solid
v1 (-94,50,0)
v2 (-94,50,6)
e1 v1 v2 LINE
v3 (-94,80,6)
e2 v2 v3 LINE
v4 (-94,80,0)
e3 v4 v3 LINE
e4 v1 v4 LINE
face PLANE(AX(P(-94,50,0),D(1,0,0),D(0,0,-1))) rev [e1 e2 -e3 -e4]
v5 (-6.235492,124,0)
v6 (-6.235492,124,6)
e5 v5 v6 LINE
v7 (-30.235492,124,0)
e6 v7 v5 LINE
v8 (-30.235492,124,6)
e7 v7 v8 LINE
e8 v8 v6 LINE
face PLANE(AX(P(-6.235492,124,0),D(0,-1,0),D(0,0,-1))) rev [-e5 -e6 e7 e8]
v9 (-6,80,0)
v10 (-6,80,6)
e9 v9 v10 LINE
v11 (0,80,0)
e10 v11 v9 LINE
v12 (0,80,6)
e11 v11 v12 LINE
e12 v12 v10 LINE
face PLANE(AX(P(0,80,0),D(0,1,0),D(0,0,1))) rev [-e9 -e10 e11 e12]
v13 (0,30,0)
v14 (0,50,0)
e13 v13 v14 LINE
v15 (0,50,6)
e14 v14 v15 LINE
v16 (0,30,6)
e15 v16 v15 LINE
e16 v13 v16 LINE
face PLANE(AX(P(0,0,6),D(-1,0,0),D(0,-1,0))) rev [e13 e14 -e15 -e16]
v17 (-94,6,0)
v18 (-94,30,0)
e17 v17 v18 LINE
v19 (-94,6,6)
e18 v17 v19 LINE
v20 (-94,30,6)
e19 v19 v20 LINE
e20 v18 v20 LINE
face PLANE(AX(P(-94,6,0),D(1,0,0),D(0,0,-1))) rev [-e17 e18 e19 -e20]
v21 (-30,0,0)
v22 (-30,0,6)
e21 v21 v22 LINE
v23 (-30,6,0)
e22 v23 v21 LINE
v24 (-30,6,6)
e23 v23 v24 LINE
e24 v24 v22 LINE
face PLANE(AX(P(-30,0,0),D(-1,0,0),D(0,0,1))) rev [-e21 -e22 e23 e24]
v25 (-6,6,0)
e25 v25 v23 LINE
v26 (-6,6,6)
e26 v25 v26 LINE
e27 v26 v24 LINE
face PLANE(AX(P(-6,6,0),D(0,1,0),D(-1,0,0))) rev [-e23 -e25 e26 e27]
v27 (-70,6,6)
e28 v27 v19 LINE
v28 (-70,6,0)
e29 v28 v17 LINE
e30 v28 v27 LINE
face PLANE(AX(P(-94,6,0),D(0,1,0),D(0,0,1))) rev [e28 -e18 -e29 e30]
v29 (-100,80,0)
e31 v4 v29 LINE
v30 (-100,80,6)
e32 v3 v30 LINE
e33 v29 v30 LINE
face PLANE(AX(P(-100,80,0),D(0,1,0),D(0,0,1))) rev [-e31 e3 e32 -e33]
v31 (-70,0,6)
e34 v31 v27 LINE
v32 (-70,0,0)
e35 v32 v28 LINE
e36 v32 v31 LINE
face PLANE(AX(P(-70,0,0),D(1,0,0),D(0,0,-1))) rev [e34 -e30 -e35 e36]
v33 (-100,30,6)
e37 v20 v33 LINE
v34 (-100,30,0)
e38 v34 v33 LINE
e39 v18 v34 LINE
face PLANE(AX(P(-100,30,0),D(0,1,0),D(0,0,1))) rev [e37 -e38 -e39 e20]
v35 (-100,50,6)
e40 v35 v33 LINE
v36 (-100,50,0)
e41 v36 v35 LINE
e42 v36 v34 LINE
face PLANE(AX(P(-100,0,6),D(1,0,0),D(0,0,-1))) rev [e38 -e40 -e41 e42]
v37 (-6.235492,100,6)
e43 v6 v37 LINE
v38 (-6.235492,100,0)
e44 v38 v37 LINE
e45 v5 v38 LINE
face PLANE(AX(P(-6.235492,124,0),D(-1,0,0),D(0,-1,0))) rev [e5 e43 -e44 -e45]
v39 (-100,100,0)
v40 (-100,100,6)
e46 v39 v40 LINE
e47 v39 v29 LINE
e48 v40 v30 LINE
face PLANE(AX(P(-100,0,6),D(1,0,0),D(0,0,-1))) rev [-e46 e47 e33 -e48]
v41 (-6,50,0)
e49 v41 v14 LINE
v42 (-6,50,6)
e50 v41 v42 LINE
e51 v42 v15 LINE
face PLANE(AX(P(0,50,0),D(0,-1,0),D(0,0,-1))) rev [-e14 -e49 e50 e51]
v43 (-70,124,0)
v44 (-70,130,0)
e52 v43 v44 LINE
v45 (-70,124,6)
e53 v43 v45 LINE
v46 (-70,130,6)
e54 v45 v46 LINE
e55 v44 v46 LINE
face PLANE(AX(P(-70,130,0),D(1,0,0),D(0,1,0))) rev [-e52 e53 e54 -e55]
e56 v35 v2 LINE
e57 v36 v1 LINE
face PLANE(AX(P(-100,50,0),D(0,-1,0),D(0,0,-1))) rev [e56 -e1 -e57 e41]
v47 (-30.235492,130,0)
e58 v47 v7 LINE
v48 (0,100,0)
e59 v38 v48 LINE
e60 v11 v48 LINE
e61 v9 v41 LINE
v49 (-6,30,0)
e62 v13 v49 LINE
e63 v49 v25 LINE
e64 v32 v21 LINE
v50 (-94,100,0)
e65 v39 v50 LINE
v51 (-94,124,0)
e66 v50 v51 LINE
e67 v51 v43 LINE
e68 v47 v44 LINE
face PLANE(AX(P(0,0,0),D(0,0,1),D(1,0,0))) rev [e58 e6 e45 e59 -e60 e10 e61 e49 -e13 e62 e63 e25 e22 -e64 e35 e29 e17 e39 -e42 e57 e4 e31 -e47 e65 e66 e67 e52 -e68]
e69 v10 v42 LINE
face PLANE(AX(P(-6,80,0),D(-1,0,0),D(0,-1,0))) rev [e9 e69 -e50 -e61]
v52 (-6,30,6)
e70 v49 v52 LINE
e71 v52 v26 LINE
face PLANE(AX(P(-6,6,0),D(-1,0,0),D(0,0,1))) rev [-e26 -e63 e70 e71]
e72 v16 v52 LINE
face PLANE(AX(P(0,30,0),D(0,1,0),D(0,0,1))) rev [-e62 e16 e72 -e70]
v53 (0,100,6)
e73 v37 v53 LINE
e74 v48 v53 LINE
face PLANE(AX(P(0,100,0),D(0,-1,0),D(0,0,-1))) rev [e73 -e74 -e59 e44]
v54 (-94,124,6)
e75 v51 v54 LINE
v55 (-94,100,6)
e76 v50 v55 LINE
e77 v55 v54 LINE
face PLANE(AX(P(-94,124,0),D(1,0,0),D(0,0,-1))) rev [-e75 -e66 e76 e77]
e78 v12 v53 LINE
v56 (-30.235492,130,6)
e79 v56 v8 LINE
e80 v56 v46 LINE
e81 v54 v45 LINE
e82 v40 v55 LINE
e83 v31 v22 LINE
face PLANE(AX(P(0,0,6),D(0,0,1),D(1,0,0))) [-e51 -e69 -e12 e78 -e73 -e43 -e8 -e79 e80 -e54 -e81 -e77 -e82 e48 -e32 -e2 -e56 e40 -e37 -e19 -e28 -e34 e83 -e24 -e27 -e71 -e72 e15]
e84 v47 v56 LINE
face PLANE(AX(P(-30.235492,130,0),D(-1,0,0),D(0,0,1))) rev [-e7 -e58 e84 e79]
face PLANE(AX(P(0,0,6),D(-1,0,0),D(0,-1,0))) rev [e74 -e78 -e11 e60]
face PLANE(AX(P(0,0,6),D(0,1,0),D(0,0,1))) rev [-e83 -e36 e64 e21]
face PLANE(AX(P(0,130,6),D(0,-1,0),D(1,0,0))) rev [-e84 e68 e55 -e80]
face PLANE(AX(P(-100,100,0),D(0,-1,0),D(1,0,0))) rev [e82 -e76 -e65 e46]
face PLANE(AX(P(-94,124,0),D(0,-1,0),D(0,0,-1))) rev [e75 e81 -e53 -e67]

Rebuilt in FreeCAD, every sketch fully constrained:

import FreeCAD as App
import Part
import Sketcher
Q = App.Units.Quantity

doc = App.newDocument("Part")
params = doc.addObject("Spreadsheet::Sheet", "Params")
for row, (alias, value) in enumerate([
    ("sketch1_width", "100 mm"),
    ("sketch1_height", "130 mm"),
    ("pad1_length", "6 mm"),
    ("sketch2_width", "30 mm"),
    ("sketch2_width2", "6 mm"),
    ("pocket1_length", "6 mm"),
], start=1):
    params.set(f"A{row}", alias)
    params.set(f"B{row}", "=" + value)
    params.setAlias(f"B{row}", alias)

body = doc.addObject("PartDesign::Body", "Body")

# Sketch on XY plane
sketch1 = doc.addObject("Sketcher::SketchObject", "Sketch")
body.addObject(sketch1)
sketch1.AttachmentSupport = (doc.XY_Plane, [""])
sketch1.MapMode = "FlatFace"
sketch1.addGeometry([
    Part.LineSegment(App.Vector(-100, 130, 0), App.Vector(-100, 0, 0)),
    Part.LineSegment(App.Vector(-100, 0, 0), App.Vector(0, 0, 0)),
    Part.LineSegment(App.Vector(0, 0, 0), App.Vector(0, 130, 0)),
    Part.LineSegment(App.Vector(0, 130, 0), App.Vector(-100, 130, 0)),
], False)
sketch1.addConstraint([
    Sketcher.Constraint("Coincident", 0, 2, 1, 1),
    Sketcher.Constraint("Coincident", 1, 2, 2, 1),
    Sketcher.Constraint("Coincident", 2, 2, 3, 1),
    Sketcher.Constraint("Coincident", 3, 2, 0, 1),
    Sketcher.Constraint("Vertical", 0),
    Sketcher.Constraint("Horizontal", 1),
    Sketcher.Constraint("Vertical", 2),
    Sketcher.Constraint("Horizontal", 3),
    Sketcher.Constraint("Coincident", 1, 2, -1, 1),
    Sketcher.Constraint("DistanceX", 1, 1, 1, 2, Q("100 mm")),
    Sketcher.Constraint("DistanceY", 0, 2, 0, 1, Q("130 mm")),
])
sketch1.setExpression("Constraints[9]", "Params.sketch1_width")
sketch1.setExpression("Constraints[10]", "Params.sketch1_height")
pad1 = doc.addObject("PartDesign::Pad", "Pad")
body.addObject(pad1)
pad1.Profile = sketch1
pad1.setExpression("Length", "Params.pad1_length")

# Sketch on XY plane
sketch2 = doc.addObject("Sketcher::SketchObject", "Sketch001")
body.addObject(sketch2)
sketch2.AttachmentSupport = (doc.XY_Plane, [""])
sketch2.MapMode = "FlatFace"
sketch2.AttachmentOffset = App.Placement(App.Vector(0, 0, 6), App.Rotation())
sketch2.addGeometry([
    Part.LineSegment(App.Vector(-70, 130, 0), App.Vector(-100, 130, 0)),  # 0
    Part.LineSegment(App.Vector(-100, 130, 0), App.Vector(-100, 100, 0)),  # 1
    Part.LineSegment(App.Vector(-100, 100, 0), App.Vector(-94, 100, 0)),  # 2
    Part.LineSegment(App.Vector(-94, 100, 0), App.Vector(-94, 124, 0)),  # 3
    Part.LineSegment(App.Vector(-94, 124, 0), App.Vector(-70, 124, 0)),  # 4
    Part.LineSegment(App.Vector(-70, 124, 0), App.Vector(-70, 130, 0)),  # 5
    Part.LineSegment(App.Vector(0, 130, 0), App.Vector(-30, 130, 0)),  # 6
    Part.LineSegment(App.Vector(-30, 130, 0), App.Vector(-30, 124, 0)),  # 7
    Part.LineSegment(App.Vector(-30, 124, 0), App.Vector(-6, 124, 0)),  # 8
    Part.LineSegment(App.Vector(-6, 124, 0), App.Vector(-6, 100, 0)),  # 9
    Part.LineSegment(App.Vector(-6, 100, 0), App.Vector(0, 100, 0)),  # 10
    Part.LineSegment(App.Vector(0, 100, 0), App.Vector(0, 130, 0)),  # 11
    Part.LineSegment(App.Vector(-100, 0, 0), App.Vector(-70, 0, 0)),  # 12
    Part.LineSegment(App.Vector(-70, 0, 0), App.Vector(-70, 6, 0)),  # 13
    Part.LineSegment(App.Vector(-70, 6, 0), App.Vector(-94, 6, 0)),  # 14
    Part.LineSegment(App.Vector(-94, 6, 0), App.Vector(-94, 30, 0)),  # 15
    Part.LineSegment(App.Vector(-94, 30, 0), App.Vector(-100, 30, 0)),  # 16
    Part.LineSegment(App.Vector(-100, 30, 0), App.Vector(-100, 0, 0)),  # 17
    Part.LineSegment(App.Vector(-30, 0, 0), App.Vector(0, 0, 0)),  # 18
    Part.LineSegment(App.Vector(0, 0, 0), App.Vector(0, 30, 0)),  # 19
    Part.LineSegment(App.Vector(0, 30, 0), App.Vector(-6, 30, 0)),  # 20
    Part.LineSegment(App.Vector(-6, 30, 0), App.Vector(-6, 6, 0)),  # 21
    Part.LineSegment(App.Vector(-6, 6, 0), App.Vector(-30, 6, 0)),  # 22
    Part.LineSegment(App.Vector(-30, 6, 0), App.Vector(-30, 0, 0)),  # 23
    Part.LineSegment(App.Vector(-100, 80, 0), App.Vector(-100, 50, 0)),  # 24
    Part.LineSegment(App.Vector(-100, 50, 0), App.Vector(-94, 50, 0)),  # 25
    Part.LineSegment(App.Vector(-94, 50, 0), App.Vector(-94, 80, 0)),  # 26
    Part.LineSegment(App.Vector(-94, 80, 0), App.Vector(-100, 80, 0)),  # 27
    Part.LineSegment(App.Vector(-6, 80, 0), App.Vector(-6, 50, 0)),  # 28
    Part.LineSegment(App.Vector(-6, 50, 0), App.Vector(0, 50, 0)),  # 29
    Part.LineSegment(App.Vector(0, 50, 0), App.Vector(0, 80, 0)),  # 30
    Part.LineSegment(App.Vector(0, 80, 0), App.Vector(-6, 80, 0)),  # 31
], False)
sketch2.addConstraint([
    Sketcher.Constraint("Coincident", 0, 2, 1, 1),
    Sketcher.Constraint("Coincident", 1, 2, 2, 1),
    Sketcher.Constraint("Coincident", 2, 2, 3, 1),
    Sketcher.Constraint("Coincident", 3, 2, 4, 1),
    Sketcher.Constraint("Coincident", 4, 2, 5, 1),
    Sketcher.Constraint("Coincident", 5, 2, 0, 1),
    Sketcher.Constraint("Coincident", 6, 2, 7, 1),
    Sketcher.Constraint("Coincident", 7, 2, 8, 1),
    Sketcher.Constraint("Coincident", 8, 2, 9, 1),
    Sketcher.Constraint("Coincident", 9, 2, 10, 1),
    Sketcher.Constraint("Coincident", 10, 2, 11, 1),
    Sketcher.Constraint("Coincident", 11, 2, 6, 1),
    Sketcher.Constraint("Coincident", 12, 2, 13, 1),
    Sketcher.Constraint("Coincident", 13, 2, 14, 1),
    Sketcher.Constraint("Coincident", 14, 2, 15, 1),
    Sketcher.Constraint("Coincident", 15, 2, 16, 1),
    Sketcher.Constraint("Coincident", 16, 2, 17, 1),
    Sketcher.Constraint("Coincident", 17, 2, 12, 1),
    Sketcher.Constraint("Coincident", 18, 2, 19, 1),
    Sketcher.Constraint("Coincident", 19, 2, 20, 1),
    Sketcher.Constraint("Coincident", 20, 2, 21, 1),
    Sketcher.Constraint("Coincident", 21, 2, 22, 1),
    Sketcher.Constraint("Coincident", 22, 2, 23, 1),
    Sketcher.Constraint("Coincident", 23, 2, 18, 1),
    Sketcher.Constraint("Coincident", 24, 2, 25, 1),
    Sketcher.Constraint("Coincident", 25, 2, 26, 1),
    Sketcher.Constraint("Coincident", 26, 2, 27, 1),
    Sketcher.Constraint("Coincident", 27, 2, 24, 1),
    Sketcher.Constraint("Coincident", 28, 2, 29, 1),
    Sketcher.Constraint("Coincident", 29, 2, 30, 1),
    Sketcher.Constraint("Coincident", 30, 2, 31, 1),
    Sketcher.Constraint("Coincident", 31, 2, 28, 1),
    Sketcher.Constraint("Horizontal", 0),
    Sketcher.Constraint("Vertical", 1),
    Sketcher.Constraint("Horizontal", 2),
    Sketcher.Constraint("Vertical", 3),
    Sketcher.Constraint("Horizontal", 4),
    Sketcher.Constraint("Vertical", 5),
    Sketcher.Constraint("Horizontal", 6),
    Sketcher.Constraint("Vertical", 7),
    Sketcher.Constraint("Horizontal", 8),
    Sketcher.Constraint("Vertical", 9),
    Sketcher.Constraint("Horizontal", 10),
    Sketcher.Constraint("Vertical", 11),
    Sketcher.Constraint("Horizontal", 12),
    Sketcher.Constraint("Vertical", 13),
    Sketcher.Constraint("Horizontal", 14),
    Sketcher.Constraint("Vertical", 15),
    Sketcher.Constraint("Horizontal", 16),
    Sketcher.Constraint("Vertical", 17),
    Sketcher.Constraint("Horizontal", 18),
    Sketcher.Constraint("Vertical", 19),
    Sketcher.Constraint("Horizontal", 20),
    Sketcher.Constraint("Vertical", 21),
    Sketcher.Constraint("Horizontal", 22),
    Sketcher.Constraint("Vertical", 23),
    Sketcher.Constraint("Vertical", 24),
    Sketcher.Constraint("Horizontal", 25),
    Sketcher.Constraint("Vertical", 26),
    Sketcher.Constraint("Horizontal", 27),
    Sketcher.Constraint("Vertical", 28),
    Sketcher.Constraint("Horizontal", 29),
    Sketcher.Constraint("Vertical", 30),
    Sketcher.Constraint("Horizontal", 31),
    Sketcher.Constraint("Coincident", 18, 2, -1, 1),
    Sketcher.Constraint("PointOnObject", 10, 2, -2),
    Sketcher.Constraint("PointOnObject", 12, 2, -1),
    Sketcher.Constraint("PointOnObject", 29, 2, -2),
    Sketcher.Constraint("Horizontal", 5, 2, 6, 2),
    Sketcher.Constraint("Horizontal", 4, 2, 7, 2),
    Sketcher.Constraint("Horizontal", 2, 2, 9, 2),
    Sketcher.Constraint("Horizontal", 16, 2, 19, 2),
    Sketcher.Constraint("Horizontal", 14, 2, 21, 2),
    Sketcher.Constraint("Horizontal", 25, 2, 28, 2),
    Sketcher.Constraint("Horizontal", 27, 2, 30, 2),
    Sketcher.Constraint("Vertical", 5, 2, 12, 2),
    Sketcher.Constraint("Vertical", 3, 2, 14, 2),
    Sketcher.Constraint("Vertical", 1, 2, 16, 2),
    Sketcher.Constraint("Vertical", 17, 2, 24, 2),
    Sketcher.Constraint("Vertical", 15, 2, 25, 2),
    Sketcher.Constraint("Vertical", 21, 2, 28, 2),
    Sketcher.Constraint("Equal", 4, 8),
    Sketcher.Constraint("Equal", 12, 18),
    Sketcher.Constraint("Equal", 16, 20),
    Sketcher.Constraint("Equal", 18, 1),
    Sketcher.Constraint("Equal", 22, 3),
    Sketcher.Constraint("Equal", 7, 13),
    Sketcher.Constraint("Equal", 9, 15),
    Sketcher.Constraint("Equal", 19, 24),
    Sketcher.Constraint("DistanceX", 0, 2, 0, 1, Q("30 mm")),
    Sketcher.Constraint("DistanceX", 2, 1, 2, 2, Q("6 mm")),
    Sketcher.Constraint("DistanceX", 0, 2, -1, 1, Q("100 mm")),
    Sketcher.Constraint("DistanceY", -1, 1, 0, 2, Q("130 mm")),
    Sketcher.Constraint("DistanceY", -1, 1, 24, 2, Q("50 mm")),
    Sketcher.Constraint("DistanceX", 6, 2, 6, 1, Q("30.235492 mm")),
])
sketch2.setExpression("Constraints[89]", "Params.sketch2_width")
sketch2.setExpression("Constraints[90]", "Params.sketch2_width2")
pocket1 = doc.addObject("PartDesign::Pocket", "Pocket")
body.addObject(pocket1)
pocket1.Profile = sketch2
pocket1.setExpression("Length", "Params.pocket1_length")

doc.recompute()
